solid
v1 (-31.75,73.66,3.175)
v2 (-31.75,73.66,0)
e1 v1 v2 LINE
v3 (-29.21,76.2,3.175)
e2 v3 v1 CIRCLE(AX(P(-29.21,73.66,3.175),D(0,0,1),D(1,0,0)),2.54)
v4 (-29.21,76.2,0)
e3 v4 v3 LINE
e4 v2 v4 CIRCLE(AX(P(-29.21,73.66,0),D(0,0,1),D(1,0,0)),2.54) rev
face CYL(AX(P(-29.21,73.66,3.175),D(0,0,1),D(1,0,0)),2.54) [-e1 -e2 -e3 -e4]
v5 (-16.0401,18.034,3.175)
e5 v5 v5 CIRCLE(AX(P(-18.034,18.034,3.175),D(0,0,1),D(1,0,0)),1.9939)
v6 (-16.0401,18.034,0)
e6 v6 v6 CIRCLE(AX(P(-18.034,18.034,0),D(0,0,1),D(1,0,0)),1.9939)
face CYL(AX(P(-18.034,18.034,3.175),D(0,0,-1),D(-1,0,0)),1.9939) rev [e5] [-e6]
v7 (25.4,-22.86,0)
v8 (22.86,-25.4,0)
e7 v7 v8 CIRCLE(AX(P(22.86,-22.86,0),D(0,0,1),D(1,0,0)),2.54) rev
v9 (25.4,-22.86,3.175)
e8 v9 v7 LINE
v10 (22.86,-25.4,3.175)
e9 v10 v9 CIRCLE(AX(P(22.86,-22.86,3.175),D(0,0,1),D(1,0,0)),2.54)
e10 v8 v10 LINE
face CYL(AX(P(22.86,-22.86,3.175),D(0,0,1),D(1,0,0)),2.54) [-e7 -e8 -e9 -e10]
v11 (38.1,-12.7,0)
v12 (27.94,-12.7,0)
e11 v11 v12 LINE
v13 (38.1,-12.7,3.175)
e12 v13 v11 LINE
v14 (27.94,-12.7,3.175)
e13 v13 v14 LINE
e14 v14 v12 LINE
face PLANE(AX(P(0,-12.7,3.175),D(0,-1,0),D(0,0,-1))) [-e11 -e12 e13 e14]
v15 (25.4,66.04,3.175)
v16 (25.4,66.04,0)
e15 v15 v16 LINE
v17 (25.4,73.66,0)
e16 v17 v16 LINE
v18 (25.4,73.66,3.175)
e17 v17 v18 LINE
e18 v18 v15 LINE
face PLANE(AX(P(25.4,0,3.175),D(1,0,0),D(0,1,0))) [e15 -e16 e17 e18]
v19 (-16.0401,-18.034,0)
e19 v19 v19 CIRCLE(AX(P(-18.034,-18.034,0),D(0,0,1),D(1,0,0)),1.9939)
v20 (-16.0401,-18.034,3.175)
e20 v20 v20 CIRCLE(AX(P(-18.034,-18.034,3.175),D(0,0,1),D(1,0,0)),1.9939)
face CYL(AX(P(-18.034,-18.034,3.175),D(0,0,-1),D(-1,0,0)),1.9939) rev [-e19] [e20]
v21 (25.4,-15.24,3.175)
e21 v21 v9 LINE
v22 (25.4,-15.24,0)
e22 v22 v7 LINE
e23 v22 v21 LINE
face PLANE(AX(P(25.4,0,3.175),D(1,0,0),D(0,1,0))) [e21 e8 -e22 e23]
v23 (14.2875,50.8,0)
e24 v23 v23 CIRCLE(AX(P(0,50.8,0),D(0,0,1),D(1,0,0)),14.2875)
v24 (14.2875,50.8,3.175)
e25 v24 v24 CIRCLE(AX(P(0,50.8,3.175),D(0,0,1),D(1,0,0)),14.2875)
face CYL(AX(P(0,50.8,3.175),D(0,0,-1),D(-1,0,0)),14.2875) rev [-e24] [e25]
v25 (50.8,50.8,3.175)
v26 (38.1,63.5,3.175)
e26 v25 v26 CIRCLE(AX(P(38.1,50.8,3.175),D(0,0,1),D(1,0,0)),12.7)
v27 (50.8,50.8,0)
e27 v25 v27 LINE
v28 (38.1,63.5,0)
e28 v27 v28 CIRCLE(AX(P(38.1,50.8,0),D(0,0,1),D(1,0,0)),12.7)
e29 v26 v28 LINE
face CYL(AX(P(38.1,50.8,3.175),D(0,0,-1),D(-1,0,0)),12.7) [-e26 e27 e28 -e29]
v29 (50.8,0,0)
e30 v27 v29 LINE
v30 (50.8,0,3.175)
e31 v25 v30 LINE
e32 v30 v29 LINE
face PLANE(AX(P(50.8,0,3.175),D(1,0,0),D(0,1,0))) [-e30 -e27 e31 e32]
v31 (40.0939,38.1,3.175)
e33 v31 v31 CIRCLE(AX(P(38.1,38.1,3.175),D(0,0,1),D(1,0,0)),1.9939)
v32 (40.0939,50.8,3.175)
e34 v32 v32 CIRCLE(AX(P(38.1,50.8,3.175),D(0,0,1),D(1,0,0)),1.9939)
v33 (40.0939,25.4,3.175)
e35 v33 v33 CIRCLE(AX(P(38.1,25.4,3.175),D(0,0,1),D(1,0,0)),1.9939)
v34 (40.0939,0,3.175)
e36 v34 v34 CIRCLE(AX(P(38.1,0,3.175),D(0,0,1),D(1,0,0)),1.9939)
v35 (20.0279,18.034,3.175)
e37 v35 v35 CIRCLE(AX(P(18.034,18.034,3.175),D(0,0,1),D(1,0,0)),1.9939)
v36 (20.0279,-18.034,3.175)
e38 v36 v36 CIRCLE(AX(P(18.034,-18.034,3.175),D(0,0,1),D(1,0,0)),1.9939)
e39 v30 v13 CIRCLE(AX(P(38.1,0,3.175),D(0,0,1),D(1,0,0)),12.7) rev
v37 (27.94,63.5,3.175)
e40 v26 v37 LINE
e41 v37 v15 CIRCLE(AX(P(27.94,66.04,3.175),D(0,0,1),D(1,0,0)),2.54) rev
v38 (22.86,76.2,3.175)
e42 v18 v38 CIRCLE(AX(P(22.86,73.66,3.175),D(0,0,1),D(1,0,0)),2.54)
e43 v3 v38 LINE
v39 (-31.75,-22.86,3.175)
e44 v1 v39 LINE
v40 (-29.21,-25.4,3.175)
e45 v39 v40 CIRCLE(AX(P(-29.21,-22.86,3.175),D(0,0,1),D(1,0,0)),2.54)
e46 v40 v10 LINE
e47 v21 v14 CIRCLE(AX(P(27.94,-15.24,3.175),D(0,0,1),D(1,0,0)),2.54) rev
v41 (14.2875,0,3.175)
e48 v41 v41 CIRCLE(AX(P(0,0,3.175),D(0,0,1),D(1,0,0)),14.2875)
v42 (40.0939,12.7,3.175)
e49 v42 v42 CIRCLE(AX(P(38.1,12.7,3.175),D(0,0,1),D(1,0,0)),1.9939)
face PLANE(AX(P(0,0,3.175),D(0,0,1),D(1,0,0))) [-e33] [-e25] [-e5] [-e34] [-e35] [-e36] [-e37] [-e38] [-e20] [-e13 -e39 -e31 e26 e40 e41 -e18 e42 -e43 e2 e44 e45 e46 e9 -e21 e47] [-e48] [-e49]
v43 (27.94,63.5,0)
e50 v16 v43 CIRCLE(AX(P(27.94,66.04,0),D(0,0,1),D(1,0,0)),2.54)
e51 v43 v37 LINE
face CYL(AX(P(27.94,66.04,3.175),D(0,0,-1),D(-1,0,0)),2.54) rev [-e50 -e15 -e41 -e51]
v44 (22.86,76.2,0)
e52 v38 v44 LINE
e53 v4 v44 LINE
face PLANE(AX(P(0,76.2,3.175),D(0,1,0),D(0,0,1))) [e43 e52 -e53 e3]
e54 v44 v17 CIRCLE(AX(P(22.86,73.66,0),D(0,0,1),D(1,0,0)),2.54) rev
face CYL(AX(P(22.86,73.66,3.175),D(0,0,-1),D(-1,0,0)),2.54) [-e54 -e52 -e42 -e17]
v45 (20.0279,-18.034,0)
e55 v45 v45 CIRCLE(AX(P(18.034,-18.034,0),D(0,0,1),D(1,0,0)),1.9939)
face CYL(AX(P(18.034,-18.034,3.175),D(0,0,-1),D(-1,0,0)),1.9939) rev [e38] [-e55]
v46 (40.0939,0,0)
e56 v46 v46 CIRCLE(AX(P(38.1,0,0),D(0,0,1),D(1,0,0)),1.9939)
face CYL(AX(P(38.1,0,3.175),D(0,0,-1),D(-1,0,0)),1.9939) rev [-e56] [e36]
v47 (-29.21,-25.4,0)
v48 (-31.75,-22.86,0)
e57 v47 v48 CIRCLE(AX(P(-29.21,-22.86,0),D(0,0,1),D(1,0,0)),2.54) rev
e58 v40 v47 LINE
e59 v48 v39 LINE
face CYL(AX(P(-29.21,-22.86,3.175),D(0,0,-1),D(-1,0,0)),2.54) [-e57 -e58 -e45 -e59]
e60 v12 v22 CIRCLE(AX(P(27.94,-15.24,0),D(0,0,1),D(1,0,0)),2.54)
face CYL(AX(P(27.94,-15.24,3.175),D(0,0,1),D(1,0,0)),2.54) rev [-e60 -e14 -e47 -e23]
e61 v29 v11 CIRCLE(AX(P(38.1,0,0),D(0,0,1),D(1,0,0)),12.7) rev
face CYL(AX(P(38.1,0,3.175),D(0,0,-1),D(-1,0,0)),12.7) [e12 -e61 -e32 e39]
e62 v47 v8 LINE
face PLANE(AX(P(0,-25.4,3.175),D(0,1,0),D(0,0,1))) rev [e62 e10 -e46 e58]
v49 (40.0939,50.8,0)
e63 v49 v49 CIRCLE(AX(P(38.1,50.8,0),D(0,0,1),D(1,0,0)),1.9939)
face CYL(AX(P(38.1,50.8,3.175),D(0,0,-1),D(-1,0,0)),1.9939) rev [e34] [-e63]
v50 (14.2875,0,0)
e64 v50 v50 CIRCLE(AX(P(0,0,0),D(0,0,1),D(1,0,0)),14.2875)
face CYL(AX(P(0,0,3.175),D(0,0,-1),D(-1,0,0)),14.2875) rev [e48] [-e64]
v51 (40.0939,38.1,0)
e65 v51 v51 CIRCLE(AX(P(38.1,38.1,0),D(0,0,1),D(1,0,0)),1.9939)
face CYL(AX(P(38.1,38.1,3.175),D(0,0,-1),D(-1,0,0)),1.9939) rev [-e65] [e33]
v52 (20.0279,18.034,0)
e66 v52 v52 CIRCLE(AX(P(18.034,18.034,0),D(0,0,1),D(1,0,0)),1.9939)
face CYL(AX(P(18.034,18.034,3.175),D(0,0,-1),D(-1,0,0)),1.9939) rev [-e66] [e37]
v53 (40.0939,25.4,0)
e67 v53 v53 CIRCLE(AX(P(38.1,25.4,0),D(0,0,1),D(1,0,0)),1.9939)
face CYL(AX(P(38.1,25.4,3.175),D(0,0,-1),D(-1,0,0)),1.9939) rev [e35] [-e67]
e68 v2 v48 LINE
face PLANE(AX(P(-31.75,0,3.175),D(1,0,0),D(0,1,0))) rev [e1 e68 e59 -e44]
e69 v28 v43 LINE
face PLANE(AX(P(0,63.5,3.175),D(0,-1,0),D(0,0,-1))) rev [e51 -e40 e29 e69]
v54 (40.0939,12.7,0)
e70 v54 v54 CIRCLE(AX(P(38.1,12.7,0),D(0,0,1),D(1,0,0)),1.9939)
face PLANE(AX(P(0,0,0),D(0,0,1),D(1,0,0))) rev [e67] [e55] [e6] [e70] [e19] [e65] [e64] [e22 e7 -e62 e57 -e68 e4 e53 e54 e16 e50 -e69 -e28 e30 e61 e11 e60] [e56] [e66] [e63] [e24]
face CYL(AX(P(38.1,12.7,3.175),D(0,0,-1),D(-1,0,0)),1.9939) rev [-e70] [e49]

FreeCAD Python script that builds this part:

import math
import FreeCAD as App
import Part
import Sketcher
from FreeCAD import Vector
Q = App.Units.Quantity


def edges_at(feature, points):
    """Names of the edges that pass closest to the given points."""
    edges = feature.Shape.Edges
    near = lambda p: min(range(len(edges)), key=lambda i: edges[i].distToShape(Part.Vertex(*p))[0])
    return sorted({f"Edge{near(p) + 1}" for p in points})

doc = App.newDocument("Part")
body = doc.addObject("PartDesign::Body", "Body")

# Sketch on XY plane
sketch1 = doc.addObject("Sketcher::SketchObject", "Sketch")
body.addObject(sketch1)
sketch1.AttachmentSupport = (doc.XY_Plane, [""])
sketch1.MapMode = "FlatFace"
sketch1.addGeometry([
    Part.LineSegment(Vector(25.4, 76.2, 0), Vector(-31.8, 76.2, 0)),  # 0
    Part.LineSegment(Vector(-31.8, 76.2, 0), Vector(-31.8, -25.4, 0)),  # 1
    Part.LineSegment(Vector(-31.8, -25.4, 0), Vector(25.4, -25.4, 0)),  # 2
    Part.LineSegment(Vector(25.4, -25.4, 0), Vector(25.4, -12.7, 0)),  # 3
    Part.LineSegment(Vector(25.4, -12.7, 0), Vector(38.1, -12.7, 0)),  # 4
    Part.ArcOfCircle(Part.Circle(Vector(38.1, 0, 0), Vector(0, 0, 1), 12.7), math.radians(-90), math.radians(0)),  # 5
    Part.LineSegment(Vector(50.8, 0, 0), Vector(50.8, 50.8, 0)),  # 6
    Part.ArcOfCircle(Part.Circle(Vector(38.1, 50.8, 0), Vector(0, 0, 1), 12.7), math.radians(0), math.radians(90)),  # 7
    Part.LineSegment(Vector(38.1, 63.5, 0), Vector(25.4, 63.5, 0)),  # 8
    Part.LineSegment(Vector(25.4, 63.5, 0), Vector(25.4, 76.2, 0)),  # 9
    Part.Circle(Vector(-18, -18, 0), Vector(0, 0, 1), 2),  # 10
    Part.Circle(Vector(0, 0, 0), Vector(0, 0, 1), 14.3),  # 11
    Part.Circle(Vector(-18, 18, 0), Vector(0, 0, 1), 2),  # 12
    Part.Circle(Vector(18, -18, 0), Vector(0, 0, 1), 2),  # 13
    Part.Circle(Vector(38.1, 0, 0), Vector(0, 0, 1), 2),  # 14
    Part.Circle(Vector(18, 18, 0), Vector(0, 0, 1), 2),  # 15
    Part.Circle(Vector(38.1, 12.7, 0), Vector(0, 0, 1), 2),  # 16
    Part.Circle(Vector(0, 50.8, 0), Vector(0, 0, 1), 14.3),  # 17
    Part.Circle(Vector(38.1, 25.4, 0), Vector(0, 0, 1), 2),  # 18
    Part.Circle(Vector(38.1, 38.1, 0), Vector(0, 0, 1), 2),  # 19
    Part.Circle(Vector(38.1, 50.8, 0), Vector(0, 0, 1), 2),  # 20
], False)
sketch1.addConstraint([
    Sketcher.Constraint("Coincident", 0, 2, 1, 1),
    Sketcher.Constraint("Coincident", 1, 2, 2, 1),
    Sketcher.Constraint("Coincident", 2, 2, 3, 1),
    Sketcher.Constraint("Coincident", 3, 2, 4, 1),
    Sketcher.Constraint("Tangent", 4, 2, 5, 1),
    Sketcher.Constraint("Tangent", 5, 2, 6, 1),
    Sketcher.Constraint("Tangent", 6, 2, 7, 1),
    Sketcher.Constraint("Tangent", 7, 2, 8, 1),
    Sketcher.Constraint("Coincident", 8, 2, 9, 1),
    Sketcher.Constraint("Coincident", 9, 2, 0, 1),
    Sketcher.Constraint("Horizontal", 0),
    Sketcher.Constraint("Vertical", 1),
    Sketcher.Constraint("Horizontal", 2),
    Sketcher.Constraint("Vertical", 3),
    Sketcher.Constraint("Horizontal", 4),
    Sketcher.Constraint("Vertical", 6),
    Sketcher.Constraint("Horizontal", 8),
    Sketcher.Constraint("Vertical", 9),
    Sketcher.Constraint("Coincident", 11, 3, -1, 1),
    Sketcher.Constraint("Coincident", 14, 3, 5, 3),
    Sketcher.Constraint("Coincident", 20, 3, 7, 3),
    Sketcher.Constraint("Equal", 5, 7),
    Sketcher.Constraint("Equal", 10, 12),
    Sketcher.Constraint("Equal", 12, 13),
    Sketcher.Constraint("Equal", 13, 14),
    Sketcher.Constraint("Equal", 14, 15),
    Sketcher.Constraint("Equal", 15, 16),
    Sketcher.Constraint("Equal", 11, 17),
    Sketcher.Constraint("Equal", 16, 18),
    Sketcher.Constraint("Equal", 18, 19),
    Sketcher.Constraint("Equal", 19, 20),
    Sketcher.Constraint("Symmetric", 12, 3, 13, 3, -1, 1),
    Sketcher.Constraint("Symmetric", 10, 3, 15, 3, -1, 1),
    Sketcher.Constraint("Symmetric", 10, 3, 13, 3, -2),
    Sketcher.Constraint("PointOnObject", 5, 3, -1),
    Sketcher.Constraint("PointOnObject", 17, 3, -2),
    Sketcher.Constraint("Horizontal", 7, 3, 17, 3),
    Sketcher.Constraint("Vertical", 14, 3, 16, 3),
    Sketcher.Constraint("Vertical", 16, 3, 18, 3),
    Sketcher.Constraint("Vertical", 18, 3, 19, 3),
    Sketcher.Constraint("Vertical", 3, 2, 8, 2),
    Sketcher.Constraint("Equal", 8, 3),
    Sketcher.Constraint("Equal", 3, 9),
    Sketcher.Constraint("Radius", 5, Q("0.5 in")),
    Sketcher.Constraint("DistanceY", 1, 2, 1, 1, Q("4 in")),
    Sketcher.Constraint("DistanceY", 6, 1, 6, 2, Q("2 in")),
    Sketcher.Constraint("Diameter", 10, Q("0.157 in")),
    Sketcher.Constraint("Diameter", 11, Q("1.125 in")),
    Sketcher.Constraint("DistanceY", -1, 1, 18, 3, Q("1 in")),
    Sketcher.Constraint("DistanceX", -1, 1, 2, 2, Q("1 in")),
    Sketcher.Constraint("DistanceY", 16, 3, 19, 3, Q("1 in")),
    Sketcher.Constraint("DistanceY", 19, 3, 7, 2, Q("1 in")),
    Sketcher.Constraint("DistanceX", 0, 2, 0, 1, Q("2.25 in")),
    Sketcher.Constraint("DistanceX", 10, 3, -1, 1, Q("0.71 in")),
    Sketcher.Constraint("DistanceY", 10, 3, -1, 1, Q("0.71 in")),
])
pad1 = doc.addObject("PartDesign::Pad", "Pad")
body.addObject(pad1)
pad1.Profile = sketch1
pad1.Length = Q("0.125 in")
doc.recompute()

fillet = doc.addObject("PartDesign::Fillet", "Fillet")
body.addObject(fillet)
fillet.Base = (pad1, edges_at(pad1, [
    (25.4, -12.7, 1.587),
    (25.4, -25.4, 1.587),
    (-31.75, -25.4, 1.587),
    (-31.75, 76.2, 1.587),
    (25.4, 76.2, 1.587),
    (25.4, 63.5, 1.587),
]))
fillet.Radius = Q("0.1 in")

doc.recompute()
